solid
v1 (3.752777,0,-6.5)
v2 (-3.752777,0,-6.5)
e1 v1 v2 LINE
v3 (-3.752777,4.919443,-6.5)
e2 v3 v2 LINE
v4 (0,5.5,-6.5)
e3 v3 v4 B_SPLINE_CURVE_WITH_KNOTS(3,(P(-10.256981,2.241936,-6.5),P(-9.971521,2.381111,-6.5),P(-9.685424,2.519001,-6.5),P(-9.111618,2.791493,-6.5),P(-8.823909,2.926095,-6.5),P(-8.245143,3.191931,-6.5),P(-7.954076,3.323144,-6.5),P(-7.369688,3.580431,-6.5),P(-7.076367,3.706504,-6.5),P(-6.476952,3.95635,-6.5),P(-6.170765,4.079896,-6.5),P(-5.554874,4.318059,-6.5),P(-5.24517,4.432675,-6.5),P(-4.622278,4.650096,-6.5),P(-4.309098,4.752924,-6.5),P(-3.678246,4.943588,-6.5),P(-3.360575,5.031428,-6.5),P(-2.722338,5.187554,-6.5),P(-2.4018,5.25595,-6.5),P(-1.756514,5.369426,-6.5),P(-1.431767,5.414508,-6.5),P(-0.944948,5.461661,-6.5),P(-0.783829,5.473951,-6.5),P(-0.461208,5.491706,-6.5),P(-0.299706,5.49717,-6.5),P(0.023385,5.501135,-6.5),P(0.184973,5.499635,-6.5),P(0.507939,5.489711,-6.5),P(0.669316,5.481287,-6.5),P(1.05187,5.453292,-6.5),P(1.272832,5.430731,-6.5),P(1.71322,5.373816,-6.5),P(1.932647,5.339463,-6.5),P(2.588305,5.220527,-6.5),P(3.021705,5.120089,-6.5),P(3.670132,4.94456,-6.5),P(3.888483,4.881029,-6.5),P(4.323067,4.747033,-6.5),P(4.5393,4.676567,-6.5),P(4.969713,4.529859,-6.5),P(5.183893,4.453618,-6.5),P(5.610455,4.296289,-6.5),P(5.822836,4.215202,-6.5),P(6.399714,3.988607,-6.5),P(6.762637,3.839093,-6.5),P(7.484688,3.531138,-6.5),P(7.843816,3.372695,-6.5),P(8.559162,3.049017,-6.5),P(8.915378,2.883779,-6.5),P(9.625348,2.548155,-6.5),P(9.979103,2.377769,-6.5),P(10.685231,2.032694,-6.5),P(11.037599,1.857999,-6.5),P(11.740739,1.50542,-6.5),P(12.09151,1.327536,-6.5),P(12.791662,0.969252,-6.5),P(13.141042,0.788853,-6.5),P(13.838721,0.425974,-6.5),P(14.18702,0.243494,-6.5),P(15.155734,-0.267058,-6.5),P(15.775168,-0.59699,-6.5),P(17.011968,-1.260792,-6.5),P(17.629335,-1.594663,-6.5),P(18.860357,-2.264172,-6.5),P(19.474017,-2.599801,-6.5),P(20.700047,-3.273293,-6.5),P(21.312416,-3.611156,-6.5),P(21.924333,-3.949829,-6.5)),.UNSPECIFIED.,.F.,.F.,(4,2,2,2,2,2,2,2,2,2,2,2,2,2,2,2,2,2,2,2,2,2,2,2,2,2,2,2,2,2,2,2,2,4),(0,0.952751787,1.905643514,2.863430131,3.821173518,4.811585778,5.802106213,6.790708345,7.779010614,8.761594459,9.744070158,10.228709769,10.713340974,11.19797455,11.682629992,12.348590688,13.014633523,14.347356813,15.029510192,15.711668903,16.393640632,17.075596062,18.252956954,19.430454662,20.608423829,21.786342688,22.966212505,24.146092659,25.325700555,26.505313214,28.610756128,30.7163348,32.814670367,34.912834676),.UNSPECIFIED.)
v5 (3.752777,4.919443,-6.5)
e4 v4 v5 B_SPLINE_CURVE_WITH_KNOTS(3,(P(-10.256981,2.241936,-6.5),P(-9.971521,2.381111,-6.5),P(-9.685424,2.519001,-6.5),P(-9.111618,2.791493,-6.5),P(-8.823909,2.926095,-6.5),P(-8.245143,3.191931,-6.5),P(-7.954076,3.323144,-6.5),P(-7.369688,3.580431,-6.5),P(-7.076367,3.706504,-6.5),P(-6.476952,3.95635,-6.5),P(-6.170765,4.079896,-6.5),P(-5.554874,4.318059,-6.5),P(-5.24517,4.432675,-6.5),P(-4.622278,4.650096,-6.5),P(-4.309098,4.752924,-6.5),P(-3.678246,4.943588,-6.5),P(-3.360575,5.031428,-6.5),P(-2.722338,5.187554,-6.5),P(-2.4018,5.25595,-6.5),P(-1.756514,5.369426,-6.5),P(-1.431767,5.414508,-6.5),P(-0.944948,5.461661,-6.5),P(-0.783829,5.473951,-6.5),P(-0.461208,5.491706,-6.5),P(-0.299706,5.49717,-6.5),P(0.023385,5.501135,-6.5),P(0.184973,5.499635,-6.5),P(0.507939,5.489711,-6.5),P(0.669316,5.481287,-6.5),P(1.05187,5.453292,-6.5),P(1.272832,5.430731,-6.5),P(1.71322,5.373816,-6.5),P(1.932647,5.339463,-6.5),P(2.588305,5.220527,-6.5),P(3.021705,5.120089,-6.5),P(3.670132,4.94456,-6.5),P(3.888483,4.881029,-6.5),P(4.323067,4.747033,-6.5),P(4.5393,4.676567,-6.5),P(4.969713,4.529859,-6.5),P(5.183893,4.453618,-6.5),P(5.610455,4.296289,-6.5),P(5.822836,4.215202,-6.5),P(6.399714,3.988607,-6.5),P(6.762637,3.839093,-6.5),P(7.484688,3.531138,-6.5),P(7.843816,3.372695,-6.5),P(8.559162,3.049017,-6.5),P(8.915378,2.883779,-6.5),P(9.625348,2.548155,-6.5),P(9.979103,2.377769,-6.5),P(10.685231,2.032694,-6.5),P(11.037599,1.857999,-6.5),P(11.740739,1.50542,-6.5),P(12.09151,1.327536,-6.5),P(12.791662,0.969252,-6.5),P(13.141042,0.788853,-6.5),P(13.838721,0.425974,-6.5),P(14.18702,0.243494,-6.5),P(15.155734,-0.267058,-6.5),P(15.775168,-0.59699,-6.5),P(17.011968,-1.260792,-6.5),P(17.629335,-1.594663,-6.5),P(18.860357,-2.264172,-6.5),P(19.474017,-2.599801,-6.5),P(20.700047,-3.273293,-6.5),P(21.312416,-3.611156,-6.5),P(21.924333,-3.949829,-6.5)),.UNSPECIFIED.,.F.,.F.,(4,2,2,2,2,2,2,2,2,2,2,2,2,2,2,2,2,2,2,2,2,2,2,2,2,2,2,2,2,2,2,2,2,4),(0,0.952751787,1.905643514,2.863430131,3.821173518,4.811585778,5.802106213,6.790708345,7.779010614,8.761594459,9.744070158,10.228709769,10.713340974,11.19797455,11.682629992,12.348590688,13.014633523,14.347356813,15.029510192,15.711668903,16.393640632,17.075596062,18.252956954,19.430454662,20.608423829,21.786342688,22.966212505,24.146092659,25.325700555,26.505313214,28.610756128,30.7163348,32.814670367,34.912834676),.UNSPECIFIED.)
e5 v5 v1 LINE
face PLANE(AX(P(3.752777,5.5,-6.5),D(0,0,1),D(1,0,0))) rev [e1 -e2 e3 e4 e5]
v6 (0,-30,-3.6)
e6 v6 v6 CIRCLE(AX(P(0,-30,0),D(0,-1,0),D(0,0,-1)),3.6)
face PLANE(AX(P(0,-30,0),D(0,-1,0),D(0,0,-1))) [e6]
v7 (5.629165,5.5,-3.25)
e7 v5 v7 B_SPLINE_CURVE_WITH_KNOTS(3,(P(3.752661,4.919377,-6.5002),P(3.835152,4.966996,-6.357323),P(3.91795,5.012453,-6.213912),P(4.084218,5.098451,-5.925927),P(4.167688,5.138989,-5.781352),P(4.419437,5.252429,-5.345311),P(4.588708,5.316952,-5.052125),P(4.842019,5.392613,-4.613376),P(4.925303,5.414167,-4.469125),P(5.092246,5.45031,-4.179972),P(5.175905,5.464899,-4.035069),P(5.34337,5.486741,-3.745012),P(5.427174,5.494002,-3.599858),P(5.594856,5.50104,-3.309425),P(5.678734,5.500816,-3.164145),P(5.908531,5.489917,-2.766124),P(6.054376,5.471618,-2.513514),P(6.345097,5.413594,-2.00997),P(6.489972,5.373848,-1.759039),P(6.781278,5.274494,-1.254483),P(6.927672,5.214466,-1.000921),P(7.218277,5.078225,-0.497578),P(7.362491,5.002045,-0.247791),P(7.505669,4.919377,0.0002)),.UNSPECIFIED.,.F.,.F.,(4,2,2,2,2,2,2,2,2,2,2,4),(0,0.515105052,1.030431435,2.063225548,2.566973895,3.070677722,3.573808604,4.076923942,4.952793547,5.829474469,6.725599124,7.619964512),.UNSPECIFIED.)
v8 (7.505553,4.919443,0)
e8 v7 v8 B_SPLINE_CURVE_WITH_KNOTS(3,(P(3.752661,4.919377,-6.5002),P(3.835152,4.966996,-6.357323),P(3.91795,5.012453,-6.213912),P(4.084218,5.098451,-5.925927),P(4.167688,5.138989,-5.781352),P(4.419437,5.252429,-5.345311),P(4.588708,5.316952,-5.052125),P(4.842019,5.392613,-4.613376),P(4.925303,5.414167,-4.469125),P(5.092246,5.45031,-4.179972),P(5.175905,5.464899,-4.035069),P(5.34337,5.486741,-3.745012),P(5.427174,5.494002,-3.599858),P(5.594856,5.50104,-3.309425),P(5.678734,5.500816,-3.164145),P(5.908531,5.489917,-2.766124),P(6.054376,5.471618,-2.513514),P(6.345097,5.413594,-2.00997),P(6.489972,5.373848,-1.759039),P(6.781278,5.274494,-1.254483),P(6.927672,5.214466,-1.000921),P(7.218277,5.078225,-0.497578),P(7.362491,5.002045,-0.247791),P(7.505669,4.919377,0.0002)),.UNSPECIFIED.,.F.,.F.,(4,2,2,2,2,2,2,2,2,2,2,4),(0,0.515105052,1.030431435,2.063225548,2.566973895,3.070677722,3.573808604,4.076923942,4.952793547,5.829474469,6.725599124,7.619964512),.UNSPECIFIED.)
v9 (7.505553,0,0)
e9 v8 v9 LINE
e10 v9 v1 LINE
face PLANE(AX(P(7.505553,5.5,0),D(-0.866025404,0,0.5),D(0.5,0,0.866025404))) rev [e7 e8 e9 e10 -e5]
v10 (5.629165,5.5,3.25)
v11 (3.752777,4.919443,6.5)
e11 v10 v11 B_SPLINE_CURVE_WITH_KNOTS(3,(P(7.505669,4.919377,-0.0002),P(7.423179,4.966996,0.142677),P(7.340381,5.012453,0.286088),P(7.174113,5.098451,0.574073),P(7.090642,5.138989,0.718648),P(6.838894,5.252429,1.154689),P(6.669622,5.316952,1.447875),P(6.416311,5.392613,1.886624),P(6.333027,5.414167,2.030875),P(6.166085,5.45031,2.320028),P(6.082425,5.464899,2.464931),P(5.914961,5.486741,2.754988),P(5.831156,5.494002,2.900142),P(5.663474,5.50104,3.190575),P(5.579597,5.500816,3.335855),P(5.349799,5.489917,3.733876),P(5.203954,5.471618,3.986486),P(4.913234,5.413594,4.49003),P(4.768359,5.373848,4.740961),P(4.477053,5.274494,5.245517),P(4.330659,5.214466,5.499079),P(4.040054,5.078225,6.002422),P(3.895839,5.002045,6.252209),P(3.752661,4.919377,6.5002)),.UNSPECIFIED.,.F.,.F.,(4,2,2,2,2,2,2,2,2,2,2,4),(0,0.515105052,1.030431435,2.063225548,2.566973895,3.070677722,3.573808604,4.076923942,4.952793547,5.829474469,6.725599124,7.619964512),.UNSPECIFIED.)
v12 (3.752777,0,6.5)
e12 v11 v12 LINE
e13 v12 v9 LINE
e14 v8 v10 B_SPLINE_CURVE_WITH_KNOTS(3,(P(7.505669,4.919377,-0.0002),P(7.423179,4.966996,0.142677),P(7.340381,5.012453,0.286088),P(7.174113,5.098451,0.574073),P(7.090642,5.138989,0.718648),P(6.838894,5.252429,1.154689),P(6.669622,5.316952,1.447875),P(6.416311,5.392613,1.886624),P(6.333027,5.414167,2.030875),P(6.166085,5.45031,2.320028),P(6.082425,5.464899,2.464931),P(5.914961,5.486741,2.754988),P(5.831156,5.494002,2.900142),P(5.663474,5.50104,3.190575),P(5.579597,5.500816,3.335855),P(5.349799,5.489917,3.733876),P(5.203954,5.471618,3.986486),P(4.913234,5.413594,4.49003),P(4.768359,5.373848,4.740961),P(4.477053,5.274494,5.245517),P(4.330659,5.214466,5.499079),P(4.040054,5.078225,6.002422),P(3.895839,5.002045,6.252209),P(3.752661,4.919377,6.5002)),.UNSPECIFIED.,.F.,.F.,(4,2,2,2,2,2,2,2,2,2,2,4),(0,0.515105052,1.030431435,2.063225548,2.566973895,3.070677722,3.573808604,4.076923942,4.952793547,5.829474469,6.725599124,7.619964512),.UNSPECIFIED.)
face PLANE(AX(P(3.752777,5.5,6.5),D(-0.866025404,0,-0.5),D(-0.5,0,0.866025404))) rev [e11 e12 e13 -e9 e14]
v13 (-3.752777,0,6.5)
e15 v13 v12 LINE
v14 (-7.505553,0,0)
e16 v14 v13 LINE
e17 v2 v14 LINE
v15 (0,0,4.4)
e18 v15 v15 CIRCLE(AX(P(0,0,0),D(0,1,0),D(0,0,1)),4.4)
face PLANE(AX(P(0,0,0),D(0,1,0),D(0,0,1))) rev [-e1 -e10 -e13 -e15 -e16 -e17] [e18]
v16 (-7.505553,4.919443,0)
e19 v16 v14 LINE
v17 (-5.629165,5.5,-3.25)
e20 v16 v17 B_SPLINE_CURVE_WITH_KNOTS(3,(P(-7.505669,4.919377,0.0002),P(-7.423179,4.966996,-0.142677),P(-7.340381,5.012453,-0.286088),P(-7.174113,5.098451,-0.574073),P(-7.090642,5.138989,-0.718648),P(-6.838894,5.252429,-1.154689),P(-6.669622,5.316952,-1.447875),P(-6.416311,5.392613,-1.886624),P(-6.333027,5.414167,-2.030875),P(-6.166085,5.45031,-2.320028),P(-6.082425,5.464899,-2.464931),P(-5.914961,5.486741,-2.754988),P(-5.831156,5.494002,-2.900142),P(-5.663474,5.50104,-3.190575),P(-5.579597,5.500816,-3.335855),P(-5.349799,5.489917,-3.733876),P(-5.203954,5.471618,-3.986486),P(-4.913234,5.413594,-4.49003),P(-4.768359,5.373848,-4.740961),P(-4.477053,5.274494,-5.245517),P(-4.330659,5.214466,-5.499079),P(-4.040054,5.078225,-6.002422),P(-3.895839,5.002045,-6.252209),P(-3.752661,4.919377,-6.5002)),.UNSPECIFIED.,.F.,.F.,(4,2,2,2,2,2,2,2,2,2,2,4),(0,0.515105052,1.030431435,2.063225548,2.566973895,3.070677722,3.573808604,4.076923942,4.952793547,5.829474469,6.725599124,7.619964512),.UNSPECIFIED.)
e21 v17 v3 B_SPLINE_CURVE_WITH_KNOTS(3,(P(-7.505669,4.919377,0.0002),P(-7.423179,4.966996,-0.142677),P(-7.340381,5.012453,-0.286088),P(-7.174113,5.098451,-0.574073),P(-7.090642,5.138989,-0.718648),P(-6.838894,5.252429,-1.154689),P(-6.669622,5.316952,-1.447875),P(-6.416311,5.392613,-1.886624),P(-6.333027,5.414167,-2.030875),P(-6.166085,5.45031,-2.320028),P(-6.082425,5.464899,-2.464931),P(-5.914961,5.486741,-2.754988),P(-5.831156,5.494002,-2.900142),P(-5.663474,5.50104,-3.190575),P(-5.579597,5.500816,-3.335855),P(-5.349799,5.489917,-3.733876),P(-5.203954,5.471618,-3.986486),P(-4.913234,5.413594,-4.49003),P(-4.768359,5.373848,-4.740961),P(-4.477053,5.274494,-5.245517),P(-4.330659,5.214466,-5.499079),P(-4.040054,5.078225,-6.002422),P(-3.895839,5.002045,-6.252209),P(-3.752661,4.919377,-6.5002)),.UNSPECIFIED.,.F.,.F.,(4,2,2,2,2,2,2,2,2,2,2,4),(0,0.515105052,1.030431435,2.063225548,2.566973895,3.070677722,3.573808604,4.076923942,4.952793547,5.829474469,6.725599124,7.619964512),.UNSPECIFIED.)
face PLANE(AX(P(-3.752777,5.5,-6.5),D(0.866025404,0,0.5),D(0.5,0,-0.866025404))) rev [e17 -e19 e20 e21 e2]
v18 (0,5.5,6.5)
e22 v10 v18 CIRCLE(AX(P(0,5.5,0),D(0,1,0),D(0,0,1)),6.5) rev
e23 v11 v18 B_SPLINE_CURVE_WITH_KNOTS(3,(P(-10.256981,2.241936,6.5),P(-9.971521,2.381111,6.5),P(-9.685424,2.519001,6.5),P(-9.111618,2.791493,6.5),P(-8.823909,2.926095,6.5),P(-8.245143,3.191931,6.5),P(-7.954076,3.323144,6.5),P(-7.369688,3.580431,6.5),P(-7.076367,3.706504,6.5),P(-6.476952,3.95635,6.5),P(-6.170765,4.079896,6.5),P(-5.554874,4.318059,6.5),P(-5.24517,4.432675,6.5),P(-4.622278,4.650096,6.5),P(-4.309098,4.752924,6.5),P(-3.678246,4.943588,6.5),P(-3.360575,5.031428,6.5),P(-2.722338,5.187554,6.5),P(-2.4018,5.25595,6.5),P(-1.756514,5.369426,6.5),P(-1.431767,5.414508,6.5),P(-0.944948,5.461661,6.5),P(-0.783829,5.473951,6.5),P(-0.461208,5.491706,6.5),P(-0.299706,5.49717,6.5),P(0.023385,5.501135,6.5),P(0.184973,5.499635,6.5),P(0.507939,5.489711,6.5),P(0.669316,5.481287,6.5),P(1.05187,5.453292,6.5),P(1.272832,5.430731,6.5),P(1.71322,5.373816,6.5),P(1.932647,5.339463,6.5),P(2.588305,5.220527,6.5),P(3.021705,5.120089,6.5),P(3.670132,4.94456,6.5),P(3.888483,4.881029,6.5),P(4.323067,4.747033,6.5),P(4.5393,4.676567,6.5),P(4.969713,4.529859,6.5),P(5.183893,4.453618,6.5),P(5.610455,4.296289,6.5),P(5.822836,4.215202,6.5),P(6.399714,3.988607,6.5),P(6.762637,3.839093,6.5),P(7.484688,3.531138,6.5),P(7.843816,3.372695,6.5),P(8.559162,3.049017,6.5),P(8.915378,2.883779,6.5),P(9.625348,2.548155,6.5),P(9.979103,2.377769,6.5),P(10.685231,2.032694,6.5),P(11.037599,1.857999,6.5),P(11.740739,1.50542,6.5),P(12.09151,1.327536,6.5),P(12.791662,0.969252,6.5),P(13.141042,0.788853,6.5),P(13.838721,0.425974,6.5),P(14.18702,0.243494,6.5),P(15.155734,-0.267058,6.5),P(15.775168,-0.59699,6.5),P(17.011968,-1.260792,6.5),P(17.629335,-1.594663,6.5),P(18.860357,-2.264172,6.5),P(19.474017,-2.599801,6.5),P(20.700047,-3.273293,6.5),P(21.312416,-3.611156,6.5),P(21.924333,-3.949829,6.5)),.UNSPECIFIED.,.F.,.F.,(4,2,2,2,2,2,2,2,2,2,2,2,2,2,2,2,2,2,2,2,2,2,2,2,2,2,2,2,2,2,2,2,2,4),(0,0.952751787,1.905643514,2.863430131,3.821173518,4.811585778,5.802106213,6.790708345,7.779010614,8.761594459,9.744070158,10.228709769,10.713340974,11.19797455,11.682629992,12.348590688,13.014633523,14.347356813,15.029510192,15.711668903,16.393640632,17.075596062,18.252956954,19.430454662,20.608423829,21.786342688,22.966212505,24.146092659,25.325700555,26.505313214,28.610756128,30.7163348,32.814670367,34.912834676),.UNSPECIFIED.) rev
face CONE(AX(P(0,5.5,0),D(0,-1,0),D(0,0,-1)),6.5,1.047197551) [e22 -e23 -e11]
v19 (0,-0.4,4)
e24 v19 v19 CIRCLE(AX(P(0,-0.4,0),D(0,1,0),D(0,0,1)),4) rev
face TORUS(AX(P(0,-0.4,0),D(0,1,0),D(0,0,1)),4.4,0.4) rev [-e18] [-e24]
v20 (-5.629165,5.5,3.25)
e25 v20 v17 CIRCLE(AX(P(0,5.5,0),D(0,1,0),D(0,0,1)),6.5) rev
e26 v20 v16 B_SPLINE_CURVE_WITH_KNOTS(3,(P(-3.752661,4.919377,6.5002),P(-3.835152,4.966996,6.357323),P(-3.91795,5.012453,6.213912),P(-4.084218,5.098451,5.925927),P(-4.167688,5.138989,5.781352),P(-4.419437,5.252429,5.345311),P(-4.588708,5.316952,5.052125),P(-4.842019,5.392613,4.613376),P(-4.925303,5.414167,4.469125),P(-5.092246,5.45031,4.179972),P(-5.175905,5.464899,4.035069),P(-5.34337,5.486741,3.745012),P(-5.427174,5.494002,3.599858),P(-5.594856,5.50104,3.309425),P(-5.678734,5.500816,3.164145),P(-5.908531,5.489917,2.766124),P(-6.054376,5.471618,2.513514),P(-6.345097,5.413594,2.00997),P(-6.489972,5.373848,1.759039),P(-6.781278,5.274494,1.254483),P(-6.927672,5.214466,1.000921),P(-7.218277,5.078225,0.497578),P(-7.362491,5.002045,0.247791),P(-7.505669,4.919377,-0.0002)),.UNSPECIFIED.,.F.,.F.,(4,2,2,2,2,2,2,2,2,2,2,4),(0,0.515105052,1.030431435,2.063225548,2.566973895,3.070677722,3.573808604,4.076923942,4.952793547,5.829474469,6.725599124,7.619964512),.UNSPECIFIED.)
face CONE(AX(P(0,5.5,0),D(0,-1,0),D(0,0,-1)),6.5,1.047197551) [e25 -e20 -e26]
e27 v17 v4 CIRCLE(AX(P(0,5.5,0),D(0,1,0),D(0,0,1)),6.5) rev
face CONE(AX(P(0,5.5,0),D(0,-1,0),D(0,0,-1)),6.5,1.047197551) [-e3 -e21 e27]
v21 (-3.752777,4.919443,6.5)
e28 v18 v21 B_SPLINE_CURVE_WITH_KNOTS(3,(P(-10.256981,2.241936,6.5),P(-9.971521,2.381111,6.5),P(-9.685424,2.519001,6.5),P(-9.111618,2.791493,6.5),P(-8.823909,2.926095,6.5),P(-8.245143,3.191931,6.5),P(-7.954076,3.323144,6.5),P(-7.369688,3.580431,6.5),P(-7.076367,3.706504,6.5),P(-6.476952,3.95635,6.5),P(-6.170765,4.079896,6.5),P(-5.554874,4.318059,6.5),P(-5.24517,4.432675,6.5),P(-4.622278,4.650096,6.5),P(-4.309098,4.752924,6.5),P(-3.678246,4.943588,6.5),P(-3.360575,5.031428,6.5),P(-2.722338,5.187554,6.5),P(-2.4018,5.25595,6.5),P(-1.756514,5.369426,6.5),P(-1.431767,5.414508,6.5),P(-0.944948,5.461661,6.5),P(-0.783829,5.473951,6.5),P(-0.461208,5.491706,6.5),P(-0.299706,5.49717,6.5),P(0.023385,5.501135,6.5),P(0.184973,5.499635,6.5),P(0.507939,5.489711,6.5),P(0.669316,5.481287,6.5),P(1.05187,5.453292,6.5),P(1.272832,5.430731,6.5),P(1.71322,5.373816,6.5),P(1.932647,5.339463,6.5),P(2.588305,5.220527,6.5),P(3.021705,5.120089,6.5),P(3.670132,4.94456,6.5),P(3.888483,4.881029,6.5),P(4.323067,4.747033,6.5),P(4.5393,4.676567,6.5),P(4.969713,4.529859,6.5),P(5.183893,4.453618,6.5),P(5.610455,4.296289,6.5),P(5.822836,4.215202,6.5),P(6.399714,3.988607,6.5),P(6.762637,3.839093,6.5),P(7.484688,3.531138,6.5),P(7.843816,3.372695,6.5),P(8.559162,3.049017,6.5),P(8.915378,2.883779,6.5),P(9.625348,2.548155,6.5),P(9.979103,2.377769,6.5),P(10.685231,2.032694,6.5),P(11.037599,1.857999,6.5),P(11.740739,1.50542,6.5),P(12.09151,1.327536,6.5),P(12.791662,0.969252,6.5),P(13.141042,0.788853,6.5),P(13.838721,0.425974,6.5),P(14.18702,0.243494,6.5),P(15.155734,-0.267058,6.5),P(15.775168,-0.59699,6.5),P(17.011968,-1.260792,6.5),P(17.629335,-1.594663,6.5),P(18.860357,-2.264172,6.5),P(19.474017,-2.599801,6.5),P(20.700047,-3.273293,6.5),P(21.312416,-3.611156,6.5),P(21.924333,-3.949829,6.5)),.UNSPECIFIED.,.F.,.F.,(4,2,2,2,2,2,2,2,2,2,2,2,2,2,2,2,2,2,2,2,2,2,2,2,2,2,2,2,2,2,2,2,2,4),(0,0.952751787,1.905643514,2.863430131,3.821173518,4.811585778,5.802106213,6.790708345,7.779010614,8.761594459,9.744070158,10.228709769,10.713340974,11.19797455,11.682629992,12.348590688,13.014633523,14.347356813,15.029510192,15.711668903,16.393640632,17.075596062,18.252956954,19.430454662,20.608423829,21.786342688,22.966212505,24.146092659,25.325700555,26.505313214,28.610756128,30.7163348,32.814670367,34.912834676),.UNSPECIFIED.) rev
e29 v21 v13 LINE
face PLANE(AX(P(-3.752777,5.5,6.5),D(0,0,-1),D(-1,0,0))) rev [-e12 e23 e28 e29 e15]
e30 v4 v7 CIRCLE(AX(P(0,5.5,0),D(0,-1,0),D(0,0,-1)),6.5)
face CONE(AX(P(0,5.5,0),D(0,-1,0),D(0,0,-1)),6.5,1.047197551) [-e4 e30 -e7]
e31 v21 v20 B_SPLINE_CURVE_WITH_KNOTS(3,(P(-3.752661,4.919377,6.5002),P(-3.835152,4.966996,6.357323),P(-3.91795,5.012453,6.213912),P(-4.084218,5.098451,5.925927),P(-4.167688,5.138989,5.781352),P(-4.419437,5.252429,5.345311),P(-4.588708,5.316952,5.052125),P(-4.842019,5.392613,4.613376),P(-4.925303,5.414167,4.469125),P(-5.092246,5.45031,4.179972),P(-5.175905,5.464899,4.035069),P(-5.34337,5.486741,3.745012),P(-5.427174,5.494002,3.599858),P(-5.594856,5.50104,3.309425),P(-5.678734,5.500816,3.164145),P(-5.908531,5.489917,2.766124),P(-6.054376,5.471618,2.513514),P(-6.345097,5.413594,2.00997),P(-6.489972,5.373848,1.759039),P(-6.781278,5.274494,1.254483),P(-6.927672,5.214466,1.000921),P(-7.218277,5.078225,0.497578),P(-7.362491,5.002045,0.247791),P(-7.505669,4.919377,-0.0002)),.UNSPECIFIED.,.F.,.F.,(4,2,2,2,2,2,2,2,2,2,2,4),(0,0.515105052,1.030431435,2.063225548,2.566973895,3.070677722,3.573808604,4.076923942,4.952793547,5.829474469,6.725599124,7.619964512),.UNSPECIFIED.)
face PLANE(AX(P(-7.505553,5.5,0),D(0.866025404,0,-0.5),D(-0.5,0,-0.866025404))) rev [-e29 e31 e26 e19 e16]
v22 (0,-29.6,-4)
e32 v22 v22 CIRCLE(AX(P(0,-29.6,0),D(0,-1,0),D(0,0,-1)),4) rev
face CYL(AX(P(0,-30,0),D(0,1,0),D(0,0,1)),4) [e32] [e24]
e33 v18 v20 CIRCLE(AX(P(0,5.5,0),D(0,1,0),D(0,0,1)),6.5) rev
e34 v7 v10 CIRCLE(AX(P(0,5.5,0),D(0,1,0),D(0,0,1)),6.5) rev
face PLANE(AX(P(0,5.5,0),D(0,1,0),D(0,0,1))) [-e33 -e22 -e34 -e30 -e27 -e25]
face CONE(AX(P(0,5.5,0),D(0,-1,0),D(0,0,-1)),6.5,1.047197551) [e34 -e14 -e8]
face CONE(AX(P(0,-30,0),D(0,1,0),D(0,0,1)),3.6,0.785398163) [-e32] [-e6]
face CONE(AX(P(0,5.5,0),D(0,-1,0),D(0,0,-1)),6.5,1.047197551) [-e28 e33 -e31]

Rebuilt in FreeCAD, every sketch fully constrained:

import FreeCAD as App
import Part
import Sketcher
Q = App.Units.Quantity


def edges_at(feature, points):
    """Names of the edges that pass closest to the given points."""
    edges = feature.Shape.Edges
    near = lambda p: min(range(len(edges)), key=lambda i: edges[i].distToShape(Part.Vertex(*p))[0])
    return sorted({f"Edge{near(p) + 1}" for p in points})


def add_polygon(sketch, points):
    """Adds a closed chain of lines whose ends are joined by coincident constraints."""
    first, n = sketch.GeometryCount, len(points)
    for a, b in zip(points, points[1:] + points[:1]):
        sketch.addGeometry(Part.LineSegment(App.Vector(*a, 0), App.Vector(*b, 0)), False)
    for i in range(n):
        sketch.addConstraint(Sketcher.Constraint("Coincident", first + i, 2, first + (i + 1) % n, 1))

doc = App.newDocument("Part")
body = doc.addObject("PartDesign::Body", "Body")

sketch1 = doc.addObject("Sketcher::SketchObject", "Sketch")
body.addObject(sketch1)
sketch1.AttachmentSupport = (doc.XZ_Plane, [""])
sketch1.MapMode = "FlatFace"
add_polygon(sketch1, [(-4, 6), (4, 6), (8, 0), (4, -6), (-4, -6), (-8, 0)])
sketch1.addConstraint(Sketcher.Constraint("Horizontal", 0))
sketch1.addConstraint(Sketcher.Constraint("Horizontal", 3))
sketch1.addConstraint(Sketcher.Constraint("Symmetric", 0, 2, 3, 2, -1, 1))
sketch1.addConstraint(Sketcher.Constraint("Symmetric", 1, 2, 4, 2, -1, 1))
sketch1.addConstraint(Sketcher.Constraint("PointOnObject", 1, 2, -1))
sketch1.addConstraint(Sketcher.Constraint("Parallel", 2, 5))
sketch1.addConstraint(Sketcher.Constraint("Vertical", 0, 2, 2, 2))
sketch1.addConstraint(Sketcher.Constraint("Angle", 1, Q("-60 deg")))
sketch1.addConstraint(Sketcher.Constraint("DistanceY", 2, 2, 0, 2, Q("13 mm")))
sketch1.addConstraint(Sketcher.Constraint("DistanceX", 0, 1, 0, 2, Q("7.505554 mm")))
pad1 = doc.addObject("PartDesign::Pad", "Pad")
body.addObject(pad1)
pad1.Profile = sketch1
pad1.Length = 5.5
pad1.Reversed = True

sketch2 = doc.addObject("Sketcher::SketchObject", "Sketch001")
body.addObject(sketch2)
sketch2.AttachmentSupport = (doc.XZ_Plane, [""])
sketch2.MapMode = "FlatFace"
sketch2.addGeometry(Part.Circle(App.Vector(0, 0, 0), App.Vector(0, 0, 1), 4), False)
sketch2.addConstraint(Sketcher.Constraint("Coincident", 0, 3, -1, 1))
sketch2.addConstraint(Sketcher.Constraint("Diameter", 0, Q("8 mm")))
pad2 = doc.addObject("PartDesign::Pad", "Pad001")
body.addObject(pad2)
pad2.Profile = sketch2
pad2.Length = 30
doc.recompute()

fillet = doc.addObject("PartDesign::Fillet", "Fillet")
body.addObject(fillet)
fillet.Base = (pad2, edges_at(pad2, [(-4, 0, 0)]))
fillet.Radius = 0.4
doc.recompute()

chamfer = doc.addObject("PartDesign::Chamfer", "Chamfer")
body.addObject(chamfer)
chamfer.Base = (fillet, edges_at(fillet, [(-4, -30, 0)]))
chamfer.Size = 0.4

sketch3 = doc.addObject("Sketcher::SketchObject", "Sketch002")
body.addObject(sketch3)
sketch3.AttachmentSupport = (doc.YZ_Plane, [""])
sketch3.MapMode = "FlatFace"
add_polygon(sketch3, [(6, -6), (0, -16), (6, -16)])
sketch3.addConstraint(Sketcher.Constraint("Horizontal", 1))
sketch3.addConstraint(Sketcher.Constraint("Vertical", 2))
sketch3.addConstraint(Sketcher.Constraint("Angle", 0, Q("-120 deg")))
sketch3.addConstraint(Sketcher.Constraint("DistanceX", -1, 1, 1, 2, Q("5.5 mm")))
sketch3.addConstraint(Sketcher.Constraint("DistanceY", 2, 2, -1, 1, Q("6.5 mm")))
sketch3.addConstraint(Sketcher.Constraint("DistanceX", 1, 1, 1, 2, Q("5.669047 mm")))
groove = doc.addObject("PartDesign::Groove", "Groove")
body.addObject(groove)
groove.Profile = sketch3
groove.ReferenceAxis = (sketch3, ["H_Axis"])
groove.Angle = 360

doc.recompute()
